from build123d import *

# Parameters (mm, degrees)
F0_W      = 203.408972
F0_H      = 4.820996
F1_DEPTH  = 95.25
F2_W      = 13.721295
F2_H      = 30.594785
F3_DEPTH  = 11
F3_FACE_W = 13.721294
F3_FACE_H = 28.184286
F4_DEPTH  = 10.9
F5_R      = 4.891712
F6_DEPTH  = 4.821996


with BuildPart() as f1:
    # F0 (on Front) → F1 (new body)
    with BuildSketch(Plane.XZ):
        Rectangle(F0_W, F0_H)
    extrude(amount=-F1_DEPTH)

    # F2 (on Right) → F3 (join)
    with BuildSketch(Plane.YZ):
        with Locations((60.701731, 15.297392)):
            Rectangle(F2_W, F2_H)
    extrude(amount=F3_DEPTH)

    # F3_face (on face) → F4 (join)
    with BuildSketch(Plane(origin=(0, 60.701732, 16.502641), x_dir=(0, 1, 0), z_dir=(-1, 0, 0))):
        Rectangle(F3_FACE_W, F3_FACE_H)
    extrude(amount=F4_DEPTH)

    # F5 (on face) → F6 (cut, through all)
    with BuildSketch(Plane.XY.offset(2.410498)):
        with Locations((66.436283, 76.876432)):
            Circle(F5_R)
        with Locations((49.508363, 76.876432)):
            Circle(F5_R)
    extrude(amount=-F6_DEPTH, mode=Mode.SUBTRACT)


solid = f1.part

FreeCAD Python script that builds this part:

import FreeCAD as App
import Part
import Sketcher

V = App.Vector
Q = App.Units.Quantity

doc = App.newDocument("Part")
body = doc.addObject("PartDesign::Body", "Body")

# Sketch on XZ plane
sketch1 = body.newObject("Sketcher::SketchObject", "Sketch")
sketch1.AttachmentSupport = (doc.getObject("XZ_Plane"), [""])
sketch1.MapMode = "FlatFace"
sketch1.addGeometry([
    Part.LineSegment(V(-101.7, 2.4, 0), V(-101.7, -2.4, 0)),
    Part.LineSegment(V(-101.7, -2.4, 0), V(101.7, -2.4, 0)),
    Part.LineSegment(V(101.7, -2.4, 0), V(101.7, 2.4, 0)),
    Part.LineSegment(V(101.7, 2.4, 0), V(-101.7, 2.4, 0)),
], False)
sketch1.addConstraint([
    Sketcher.Constraint("Coincident", 0, 2, 1, 1),
    Sketcher.Constraint("Coincident", 1, 2, 2, 1),
    Sketcher.Constraint("Coincident", 2, 2, 3, 1),
    Sketcher.Constraint("Coincident", 3, 2, 0, 1),
    Sketcher.Constraint("Vertical", 0),
    Sketcher.Constraint("Horizontal", 1),
    Sketcher.Constraint("Vertical", 2),
    Sketcher.Constraint("Horizontal", 3),
    Sketcher.Constraint("Symmetric", 0, 2, 2, 2, -1, 1),
    Sketcher.Constraint("DistanceX", 1, 1, 1, 2, Q("203.408972 mm")),
    Sketcher.Constraint("DistanceY", 0, 2, -1, 1, Q("2.410498 mm")),
])
pad1 = body.newObject("PartDesign::Pad", "Pad")
pad1.Profile = sketch1
pad1.Length = 95.25
pad1.Reversed = True

# Sketch on YZ plane
sketch2 = body.newObject("Sketcher::SketchObject", "Sketch001")
sketch2.AttachmentSupport = (doc.getObject("YZ_Plane"), [""])
sketch2.MapMode = "FlatFace"
sketch2.addGeometry([
    Part.LineSegment(V(54, 31, 0), V(54, 0, 0)),
    Part.LineSegment(V(54, 0, 0), V(68, 0, 0)),
    Part.LineSegment(V(68, 0, 0), V(68, 31, 0)),
    Part.LineSegment(V(68, 31, 0), V(54, 31, 0)),
], False)
sketch2.addConstraint([
    Sketcher.Constraint("Coincident", 0, 2, 1, 1),
    Sketcher.Constraint("Coincident", 1, 2, 2, 1),
    Sketcher.Constraint("Coincident", 2, 2, 3, 1),
    Sketcher.Constraint("Coincident", 3, 2, 0, 1),
    Sketcher.Constraint("Vertical", 0),
    Sketcher.Constraint("Horizontal", 1),
    Sketcher.Constraint("Vertical", 2),
    Sketcher.Constraint("Horizontal", 3),
    Sketcher.Constraint("PointOnObject", 0, 2, -1),
    Sketcher.Constraint("DistanceX", 1, 1, 1, 2, Q("13.721295 mm")),
    Sketcher.Constraint("DistanceY", 0, 2, 0, 1, Q("30.594785 mm")),
    Sketcher.Constraint("DistanceX", -1, 1, 1, 2, Q("67.562378 mm")),
])
pad2 = body.newObject("PartDesign::Pad", "Pad001")
pad2.Profile = sketch2
pad2.Length = 11

# Sketch on YZ plane
sketch3 = body.newObject("Sketcher::SketchObject", "Sketch002")
sketch3.AttachmentSupport = (doc.getObject("YZ_Plane"), [""])
sketch3.MapMode = "FlatFace"
sketch3.addGeometry([
    Part.LineSegment(V(54, 2, 0), V(54, 31, 0)),
    Part.LineSegment(V(54, 31, 0), V(68, 31, 0)),
    Part.LineSegment(V(68, 31, 0), V(68, 2, 0)),
    Part.LineSegment(V(68, 2, 0), V(54, 2, 0)),
], False)
sketch3.addConstraint([
    Sketcher.Constraint("Coincident", 0, 2, 1, 1),
    Sketcher.Constraint("Coincident", 1, 2, 2, 1),
    Sketcher.Constraint("Coincident", 2, 2, 3, 1),
    Sketcher.Constraint("Coincident", 3, 2, 0, 1),
    Sketcher.Constraint("Vertical", 0),
    Sketcher.Constraint("Horizontal", 1),
    Sketcher.Constraint("Vertical", 2),
    Sketcher.Constraint("Horizontal", 3),
    Sketcher.Constraint("DistanceY", -1, 1, 2, 2, Q("2.410498 mm")),
    Sketcher.Constraint("DistanceX", 1, 1, 1, 2, Q("13.721294 mm")),
    Sketcher.Constraint("DistanceY", 0, 1, 0, 2, Q("28.184286 mm")),
    Sketcher.Constraint("DistanceX", -1, 1, 1, 2, Q("67.562379 mm")),
])
pad3 = body.newObject("PartDesign::Pad", "Pad002")
pad3.Profile = sketch3
pad3.Length = 10.9
pad3.Reversed = True

# Sketch on XY plane
sketch4 = body.newObject("Sketcher::SketchObject", "Sketch003")
sketch4.AttachmentSupport = (doc.getObject("XY_Plane"), [""])
sketch4.MapMode = "FlatFace"
sketch4.AttachmentOffset = App.Placement(V(0, 0, 2.410498), App.Rotation())
sketch4.addGeometry([
    Part.Circle(V(66.4, 76.9, 0), V(0, 0, 1), 4.9),
    Part.Circle(V(49.5, 76.9, 0), V(0, 0, 1), 4.9),
], False)
sketch4.addConstraint([
    Sketcher.Constraint("Equal", 0, 1),
    Sketcher.Constraint("Horizontal", 0, 3, 1, 3),
    Sketcher.Constraint("Diameter", 0, Q("9.783424 mm")),
    Sketcher.Constraint("DistanceY", -1, 1, 0, 3, Q("76.876432 mm")),
    Sketcher.Constraint("DistanceX", 1, 3, 0, 3, Q("16.92792 mm")),
    Sketcher.Constraint("DistanceX", -1, 1, 0, 3, Q("66.436283 mm")),
])
pocket1 = body.newObject("PartDesign::Pocket", "Pocket")
pocket1.Profile = sketch4
pocket1.Type = "ThroughAll"

doc.recompute()
